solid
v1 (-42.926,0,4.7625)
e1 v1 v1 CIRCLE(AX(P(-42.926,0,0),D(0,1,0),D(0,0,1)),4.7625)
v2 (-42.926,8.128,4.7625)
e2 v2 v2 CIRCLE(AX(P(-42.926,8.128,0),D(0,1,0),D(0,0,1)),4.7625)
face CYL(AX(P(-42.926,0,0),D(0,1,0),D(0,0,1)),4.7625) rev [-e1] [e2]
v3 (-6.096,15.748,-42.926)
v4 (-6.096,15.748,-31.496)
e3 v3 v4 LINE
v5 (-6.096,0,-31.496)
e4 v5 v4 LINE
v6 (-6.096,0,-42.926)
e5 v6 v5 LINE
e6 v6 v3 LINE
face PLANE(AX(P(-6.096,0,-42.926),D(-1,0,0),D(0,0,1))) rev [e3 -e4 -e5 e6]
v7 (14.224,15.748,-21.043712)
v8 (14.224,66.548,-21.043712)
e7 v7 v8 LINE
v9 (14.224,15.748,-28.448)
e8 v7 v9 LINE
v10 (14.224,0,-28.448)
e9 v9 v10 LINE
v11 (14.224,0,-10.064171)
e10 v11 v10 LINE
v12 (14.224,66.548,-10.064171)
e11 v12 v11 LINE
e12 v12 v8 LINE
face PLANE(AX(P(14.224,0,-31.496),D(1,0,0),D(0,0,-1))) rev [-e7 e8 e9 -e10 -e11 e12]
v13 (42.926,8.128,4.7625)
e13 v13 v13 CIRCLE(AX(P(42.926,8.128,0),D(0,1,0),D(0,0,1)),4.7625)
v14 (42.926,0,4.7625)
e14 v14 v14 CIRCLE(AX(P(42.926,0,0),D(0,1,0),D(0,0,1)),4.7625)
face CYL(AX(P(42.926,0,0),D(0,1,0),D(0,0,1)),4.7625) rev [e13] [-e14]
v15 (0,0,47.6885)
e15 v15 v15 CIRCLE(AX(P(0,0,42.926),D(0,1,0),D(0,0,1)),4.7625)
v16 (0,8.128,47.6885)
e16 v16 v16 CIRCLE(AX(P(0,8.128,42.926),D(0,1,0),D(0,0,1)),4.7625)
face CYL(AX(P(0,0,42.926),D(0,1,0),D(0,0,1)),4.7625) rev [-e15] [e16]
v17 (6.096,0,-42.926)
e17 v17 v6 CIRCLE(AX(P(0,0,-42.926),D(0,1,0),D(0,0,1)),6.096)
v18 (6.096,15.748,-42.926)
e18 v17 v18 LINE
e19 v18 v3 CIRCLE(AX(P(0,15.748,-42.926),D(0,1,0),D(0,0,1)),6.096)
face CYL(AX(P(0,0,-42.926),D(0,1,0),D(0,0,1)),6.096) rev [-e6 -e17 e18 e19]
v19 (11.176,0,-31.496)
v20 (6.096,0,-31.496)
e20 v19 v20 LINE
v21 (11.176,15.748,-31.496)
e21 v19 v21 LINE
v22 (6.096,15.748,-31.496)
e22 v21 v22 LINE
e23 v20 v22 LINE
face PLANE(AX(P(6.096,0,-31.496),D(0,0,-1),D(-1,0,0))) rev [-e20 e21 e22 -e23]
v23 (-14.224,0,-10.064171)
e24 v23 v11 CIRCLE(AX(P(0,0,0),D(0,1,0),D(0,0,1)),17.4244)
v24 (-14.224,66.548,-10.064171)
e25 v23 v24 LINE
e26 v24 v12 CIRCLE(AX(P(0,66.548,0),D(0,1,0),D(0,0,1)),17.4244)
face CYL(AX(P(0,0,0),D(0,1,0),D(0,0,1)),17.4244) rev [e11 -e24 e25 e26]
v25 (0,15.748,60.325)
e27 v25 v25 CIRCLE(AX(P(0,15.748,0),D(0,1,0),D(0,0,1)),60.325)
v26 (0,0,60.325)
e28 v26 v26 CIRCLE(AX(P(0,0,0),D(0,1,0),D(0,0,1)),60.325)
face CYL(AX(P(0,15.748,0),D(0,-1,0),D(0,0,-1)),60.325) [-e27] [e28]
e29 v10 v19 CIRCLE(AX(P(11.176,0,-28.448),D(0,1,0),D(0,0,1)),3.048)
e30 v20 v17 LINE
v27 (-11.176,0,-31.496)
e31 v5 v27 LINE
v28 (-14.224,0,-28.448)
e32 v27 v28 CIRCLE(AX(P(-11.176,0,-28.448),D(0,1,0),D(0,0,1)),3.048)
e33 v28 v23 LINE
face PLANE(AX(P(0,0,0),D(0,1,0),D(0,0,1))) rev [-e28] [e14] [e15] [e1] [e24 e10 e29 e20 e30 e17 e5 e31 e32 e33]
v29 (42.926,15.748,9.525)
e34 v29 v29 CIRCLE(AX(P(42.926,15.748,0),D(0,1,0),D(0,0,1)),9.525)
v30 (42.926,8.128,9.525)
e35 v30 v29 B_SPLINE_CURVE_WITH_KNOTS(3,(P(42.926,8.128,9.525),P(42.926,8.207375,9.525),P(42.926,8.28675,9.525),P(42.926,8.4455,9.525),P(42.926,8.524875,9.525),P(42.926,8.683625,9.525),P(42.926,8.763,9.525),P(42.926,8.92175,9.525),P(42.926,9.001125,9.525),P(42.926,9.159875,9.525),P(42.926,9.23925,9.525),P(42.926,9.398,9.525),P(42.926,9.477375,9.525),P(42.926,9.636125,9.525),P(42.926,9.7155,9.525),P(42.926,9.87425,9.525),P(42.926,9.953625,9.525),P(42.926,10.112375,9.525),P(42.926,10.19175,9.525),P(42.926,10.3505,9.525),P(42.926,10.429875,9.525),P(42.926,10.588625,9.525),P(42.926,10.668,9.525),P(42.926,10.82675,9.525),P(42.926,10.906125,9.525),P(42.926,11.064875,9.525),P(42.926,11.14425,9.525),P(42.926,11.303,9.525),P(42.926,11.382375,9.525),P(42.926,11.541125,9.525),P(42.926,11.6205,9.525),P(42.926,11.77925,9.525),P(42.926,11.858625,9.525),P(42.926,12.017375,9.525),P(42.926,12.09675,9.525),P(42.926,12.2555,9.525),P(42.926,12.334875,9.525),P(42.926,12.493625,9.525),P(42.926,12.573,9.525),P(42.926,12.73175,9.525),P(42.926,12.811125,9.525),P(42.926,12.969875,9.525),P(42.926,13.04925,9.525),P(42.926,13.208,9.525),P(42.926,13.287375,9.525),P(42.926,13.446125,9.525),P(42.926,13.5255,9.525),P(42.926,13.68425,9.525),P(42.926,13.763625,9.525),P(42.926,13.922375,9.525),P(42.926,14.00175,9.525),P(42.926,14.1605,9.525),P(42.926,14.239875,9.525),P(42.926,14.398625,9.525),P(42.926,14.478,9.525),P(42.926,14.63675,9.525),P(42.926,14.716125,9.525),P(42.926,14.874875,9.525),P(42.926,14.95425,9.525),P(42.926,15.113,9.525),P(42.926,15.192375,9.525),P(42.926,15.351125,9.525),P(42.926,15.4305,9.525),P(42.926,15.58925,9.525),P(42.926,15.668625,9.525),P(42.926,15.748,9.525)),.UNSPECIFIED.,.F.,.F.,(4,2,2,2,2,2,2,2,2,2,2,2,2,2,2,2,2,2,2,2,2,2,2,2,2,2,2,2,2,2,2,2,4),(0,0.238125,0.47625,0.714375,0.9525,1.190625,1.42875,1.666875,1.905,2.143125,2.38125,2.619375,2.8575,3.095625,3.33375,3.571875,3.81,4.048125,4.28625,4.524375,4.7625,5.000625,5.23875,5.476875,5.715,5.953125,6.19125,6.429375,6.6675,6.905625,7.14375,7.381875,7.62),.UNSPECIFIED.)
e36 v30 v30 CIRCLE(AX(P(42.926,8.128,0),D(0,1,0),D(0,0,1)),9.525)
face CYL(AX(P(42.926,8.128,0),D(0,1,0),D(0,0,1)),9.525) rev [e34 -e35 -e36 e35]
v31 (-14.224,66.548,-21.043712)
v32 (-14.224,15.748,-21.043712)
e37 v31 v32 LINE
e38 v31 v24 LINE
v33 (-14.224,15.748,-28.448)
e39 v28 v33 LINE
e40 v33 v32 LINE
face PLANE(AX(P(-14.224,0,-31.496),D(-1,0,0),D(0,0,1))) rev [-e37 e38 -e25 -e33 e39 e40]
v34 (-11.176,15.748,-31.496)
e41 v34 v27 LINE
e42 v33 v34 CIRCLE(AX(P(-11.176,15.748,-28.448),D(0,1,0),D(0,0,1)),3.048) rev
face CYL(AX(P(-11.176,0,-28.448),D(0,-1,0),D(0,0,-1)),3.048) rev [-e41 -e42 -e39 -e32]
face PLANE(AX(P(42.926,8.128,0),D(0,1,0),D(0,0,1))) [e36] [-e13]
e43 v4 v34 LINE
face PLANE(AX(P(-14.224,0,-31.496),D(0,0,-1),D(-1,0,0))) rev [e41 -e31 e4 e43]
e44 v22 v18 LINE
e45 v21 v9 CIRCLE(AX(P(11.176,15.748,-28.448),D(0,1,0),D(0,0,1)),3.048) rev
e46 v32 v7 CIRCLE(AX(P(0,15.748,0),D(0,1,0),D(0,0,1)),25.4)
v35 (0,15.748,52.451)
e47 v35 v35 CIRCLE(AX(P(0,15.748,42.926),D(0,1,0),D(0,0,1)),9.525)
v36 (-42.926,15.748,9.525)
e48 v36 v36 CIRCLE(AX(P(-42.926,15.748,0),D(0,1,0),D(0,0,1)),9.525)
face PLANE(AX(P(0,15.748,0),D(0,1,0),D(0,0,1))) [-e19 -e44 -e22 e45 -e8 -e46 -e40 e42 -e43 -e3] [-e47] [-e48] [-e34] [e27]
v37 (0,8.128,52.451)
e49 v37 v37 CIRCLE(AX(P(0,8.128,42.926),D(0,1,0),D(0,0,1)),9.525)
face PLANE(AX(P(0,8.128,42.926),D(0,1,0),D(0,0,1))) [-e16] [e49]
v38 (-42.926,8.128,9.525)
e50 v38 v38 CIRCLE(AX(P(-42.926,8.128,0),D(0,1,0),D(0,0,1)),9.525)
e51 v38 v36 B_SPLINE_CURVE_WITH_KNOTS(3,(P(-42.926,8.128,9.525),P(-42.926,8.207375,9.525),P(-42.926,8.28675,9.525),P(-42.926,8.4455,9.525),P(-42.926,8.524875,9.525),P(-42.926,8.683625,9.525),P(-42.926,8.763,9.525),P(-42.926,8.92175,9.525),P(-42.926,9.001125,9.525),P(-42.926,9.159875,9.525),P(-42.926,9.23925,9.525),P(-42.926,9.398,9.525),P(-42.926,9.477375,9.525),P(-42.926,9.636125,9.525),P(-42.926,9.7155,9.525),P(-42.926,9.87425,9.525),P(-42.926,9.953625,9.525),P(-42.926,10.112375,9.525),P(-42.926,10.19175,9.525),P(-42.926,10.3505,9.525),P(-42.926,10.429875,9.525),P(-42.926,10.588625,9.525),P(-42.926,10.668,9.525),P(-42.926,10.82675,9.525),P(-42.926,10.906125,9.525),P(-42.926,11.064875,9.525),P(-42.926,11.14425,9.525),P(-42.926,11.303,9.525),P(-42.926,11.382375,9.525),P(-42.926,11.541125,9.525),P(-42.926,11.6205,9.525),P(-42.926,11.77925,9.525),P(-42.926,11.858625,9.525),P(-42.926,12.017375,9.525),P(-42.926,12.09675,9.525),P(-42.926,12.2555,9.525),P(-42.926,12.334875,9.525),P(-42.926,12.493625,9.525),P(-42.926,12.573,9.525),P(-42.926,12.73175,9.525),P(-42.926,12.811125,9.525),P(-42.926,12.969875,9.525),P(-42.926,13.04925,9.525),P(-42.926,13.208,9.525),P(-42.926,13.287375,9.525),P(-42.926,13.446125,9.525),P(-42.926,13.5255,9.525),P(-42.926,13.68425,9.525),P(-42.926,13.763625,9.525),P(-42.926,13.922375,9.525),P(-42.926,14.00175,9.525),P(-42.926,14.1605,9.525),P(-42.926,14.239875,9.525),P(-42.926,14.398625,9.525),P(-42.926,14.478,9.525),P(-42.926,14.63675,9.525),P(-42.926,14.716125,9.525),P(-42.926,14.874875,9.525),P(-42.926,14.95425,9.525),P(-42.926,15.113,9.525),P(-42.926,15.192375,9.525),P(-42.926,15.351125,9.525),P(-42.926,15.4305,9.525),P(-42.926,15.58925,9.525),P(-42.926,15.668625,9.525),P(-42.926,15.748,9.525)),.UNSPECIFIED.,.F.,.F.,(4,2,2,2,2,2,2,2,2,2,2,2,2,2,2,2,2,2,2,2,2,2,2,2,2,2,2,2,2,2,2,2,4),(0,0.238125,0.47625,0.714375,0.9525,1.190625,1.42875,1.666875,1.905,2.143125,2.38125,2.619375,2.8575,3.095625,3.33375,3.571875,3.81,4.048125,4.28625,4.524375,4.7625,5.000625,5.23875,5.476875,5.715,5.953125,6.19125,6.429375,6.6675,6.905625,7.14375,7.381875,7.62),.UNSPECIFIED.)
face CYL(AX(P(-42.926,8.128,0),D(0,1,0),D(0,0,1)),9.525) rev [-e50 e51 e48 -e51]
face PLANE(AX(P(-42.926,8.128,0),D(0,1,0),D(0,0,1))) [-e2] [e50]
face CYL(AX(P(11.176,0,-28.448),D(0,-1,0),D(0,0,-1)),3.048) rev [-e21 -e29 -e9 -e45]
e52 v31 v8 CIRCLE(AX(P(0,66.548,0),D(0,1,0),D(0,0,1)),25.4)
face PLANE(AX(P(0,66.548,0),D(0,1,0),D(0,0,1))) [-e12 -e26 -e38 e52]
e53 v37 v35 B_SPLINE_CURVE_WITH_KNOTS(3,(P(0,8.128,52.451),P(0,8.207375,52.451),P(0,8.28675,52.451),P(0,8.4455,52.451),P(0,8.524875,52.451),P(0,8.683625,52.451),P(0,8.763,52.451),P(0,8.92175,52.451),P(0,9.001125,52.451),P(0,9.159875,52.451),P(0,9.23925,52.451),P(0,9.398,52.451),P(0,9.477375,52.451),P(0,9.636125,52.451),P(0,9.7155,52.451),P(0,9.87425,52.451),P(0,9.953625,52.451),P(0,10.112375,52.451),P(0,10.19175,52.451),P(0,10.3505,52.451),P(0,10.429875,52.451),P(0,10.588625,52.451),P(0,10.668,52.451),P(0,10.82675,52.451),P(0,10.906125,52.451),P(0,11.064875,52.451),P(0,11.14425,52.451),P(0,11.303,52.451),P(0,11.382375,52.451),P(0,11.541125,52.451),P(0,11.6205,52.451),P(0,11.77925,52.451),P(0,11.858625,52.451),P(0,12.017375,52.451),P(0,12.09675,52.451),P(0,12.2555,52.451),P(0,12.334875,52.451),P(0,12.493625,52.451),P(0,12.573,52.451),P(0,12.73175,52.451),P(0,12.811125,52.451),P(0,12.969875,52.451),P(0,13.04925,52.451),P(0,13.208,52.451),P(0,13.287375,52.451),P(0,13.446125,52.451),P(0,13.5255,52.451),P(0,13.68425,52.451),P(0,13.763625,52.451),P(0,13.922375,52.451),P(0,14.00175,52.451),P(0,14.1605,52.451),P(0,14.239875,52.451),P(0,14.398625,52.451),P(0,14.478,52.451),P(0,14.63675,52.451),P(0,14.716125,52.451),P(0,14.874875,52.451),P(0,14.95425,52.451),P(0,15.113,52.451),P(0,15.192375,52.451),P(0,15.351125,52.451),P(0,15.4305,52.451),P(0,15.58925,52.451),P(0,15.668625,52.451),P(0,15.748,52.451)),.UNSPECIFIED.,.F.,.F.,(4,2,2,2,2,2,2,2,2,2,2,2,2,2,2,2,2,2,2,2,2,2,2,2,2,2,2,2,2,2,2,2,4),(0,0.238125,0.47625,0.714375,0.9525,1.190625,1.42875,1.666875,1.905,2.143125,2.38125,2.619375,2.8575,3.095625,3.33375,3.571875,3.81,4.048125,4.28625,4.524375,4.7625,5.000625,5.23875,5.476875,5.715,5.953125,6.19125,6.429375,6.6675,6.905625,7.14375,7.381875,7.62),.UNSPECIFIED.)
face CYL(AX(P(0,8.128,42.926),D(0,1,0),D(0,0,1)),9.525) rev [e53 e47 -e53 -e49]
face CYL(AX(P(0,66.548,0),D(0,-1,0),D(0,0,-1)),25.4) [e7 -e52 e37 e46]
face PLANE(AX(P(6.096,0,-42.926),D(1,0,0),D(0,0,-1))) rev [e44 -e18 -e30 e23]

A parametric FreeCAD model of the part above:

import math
import FreeCAD as App
import Part
import Sketcher
from FreeCAD import Vector
Q = App.Units.Quantity


def edges_at(feature, points):
    """Names of the edges that pass closest to the given points."""
    edges = feature.Shape.Edges
    near = lambda p: min(range(len(edges)), key=lambda i: edges[i].distToShape(Part.Vertex(*p))[0])
    return sorted({f"Edge{near(p) + 1}" for p in points})

doc = App.newDocument("Part")
params = doc.addObject("Spreadsheet::Sheet", "Params")
for row, (alias, value) in enumerate([
    ("sketch1_diameter", "4.75 in"),
    ("pad1_length", "0.62 in"),
    ("sketch2_diameter", "0.75 in"),
    ("pocket1_length", "0.3 in"),
    ("sketch3_diameter", "0.375 in"),
    ("sketch4_diameter", "2 in"),
    ("pad2_length", "2 in"),
    ("sketch5_diameter", "1.372 in"),
    ("sketch6_radius", "0.24 in"),
    ("sketch6_width", "0.32 in"),
    ("sketch6_height", "0.45 in"),
    ("sketch6_height2", "1.24 in"),
    ("fillet_radius", "0.12 in"),
], start=1):
    params.set(f"A{row}", alias)
    params.set(f"B{row}", "=" + value)
    params.setAlias(f"B{row}", alias)

body = doc.addObject("PartDesign::Body", "Body")

# Sketch on XZ plane
sketch1 = body.newObject("Sketcher::SketchObject", "Sketch")
sketch1.AttachmentSupport = (doc.getObject("XZ_Plane"), [""])
sketch1.MapMode = "FlatFace"
sketch1.addGeometry(Part.Circle(Vector(0, 0, 0), Vector(0, 0, 1), 60), False)
sketch1.addConstraint([
    Sketcher.Constraint("Coincident", 0, 3, -1, 1),
    Sketcher.Constraint("Diameter", 0, Q("4.75 in")),
])
sketch1.setExpression("Constraints[1]", "Params.sketch1_diameter")
pad1 = body.newObject("PartDesign::Pad", "Pad")
pad1.Profile = sketch1
pad1.setExpression("Length", "Params.pad1_length")
pad1.Reversed = True

# Sketch on XZ plane
sketch2 = body.newObject("Sketcher::SketchObject", "Sketch001")
sketch2.AttachmentSupport = (doc.getObject("XZ_Plane"), [""])
sketch2.MapMode = "FlatFace"
sketch2.AttachmentOffset = App.Placement(Vector(0, 0, -0.62 * 25.4), App.Rotation())
sketch2.addGeometry([
    Part.Circle(Vector(0, 43, 0), Vector(0, 0, 1), 10),
    Part.Circle(Vector(43, 0, 0), Vector(0, 0, 1), 10),
    Part.Circle(Vector(-43, 0, 0), Vector(0, 0, 1), 10),
], False)
sketch2.addConstraint([
    Sketcher.Constraint("Equal", 0, 1),
    Sketcher.Constraint("Equal", 1, 2),
    Sketcher.Constraint("Symmetric", 1, 3, 2, 3, -1, 1),
    Sketcher.Constraint("PointOnObject", 0, 3, -2),
    Sketcher.Constraint("PointOnObject", 1, 3, -1),
    Sketcher.Constraint("Diameter", 0, Q("0.75 in")),
    Sketcher.Constraint("DistanceY", -1, 1, 0, 3, Q("1.69 in")),
    Sketcher.Constraint("DistanceX", -1, 1, 1, 3, Q("1.69 in")),
])
sketch2.setExpression("Constraints[5]", "Params.sketch2_diameter")
pocket1 = body.newObject("PartDesign::Pocket", "Pocket")
pocket1.Profile = sketch2
pocket1.setExpression("Length", "Params.pocket1_length")
pocket1.Reversed = True

# Sketch on XZ plane
sketch3 = body.newObject("Sketcher::SketchObject", "Sketch002")
sketch3.AttachmentSupport = (doc.getObject("XZ_Plane"), [""])
sketch3.MapMode = "FlatFace"
sketch3.AttachmentOffset = App.Placement(Vector(0, 0, -0.32 * 25.4), App.Rotation())
sketch3.addGeometry([
    Part.Circle(Vector(-42.9, 0, 0), Vector(0, 0, 1), 4.8),
    Part.Circle(Vector(42.9, 0, 0), Vector(0, 0, 1), 4.8),
    Part.Circle(Vector(0, 42.9, 0), Vector(0, 0, 1), 4.8),
], False)
sketch3.addConstraint([
    Sketcher.Constraint("Equal", 0, 1),
    Sketcher.Constraint("Equal", 1, 2),
    Sketcher.Constraint("Symmetric", 0, 3, 1, 3, -1, 1),
    Sketcher.Constraint("PointOnObject", 0, 3, -1),
    Sketcher.Constraint("PointOnObject", 2, 3, -2),
    Sketcher.Constraint("Diameter", 0, Q("0.375 in")),
    Sketcher.Constraint("DistanceX", 0, 3, -1, 1, Q("1.69 in")),
    Sketcher.Constraint("DistanceY", -1, 1, 2, 3, Q("1.69 in")),
])
sketch3.setExpression("Constraints[5]", "Params.sketch3_diameter")
pocket2 = body.newObject("PartDesign::Pocket", "Pocket001")
pocket2.Profile = sketch3
pocket2.Type = "ThroughAll"
pocket2.Reversed = True

# Sketch on XZ plane
sketch4 = body.newObject("Sketcher::SketchObject", "Sketch003")
sketch4.AttachmentSupport = (doc.getObject("XZ_Plane"), [""])
sketch4.MapMode = "FlatFace"
sketch4.AttachmentOffset = App.Placement(Vector(0, 0, -0.62 * 25.4), App.Rotation())
sketch4.addGeometry(Part.Circle(Vector(0, 0, 0), Vector(0, 0, 1), 25), False)
sketch4.addConstraint([
    Sketcher.Constraint("Coincident", 0, 3, -1, 1),
    Sketcher.Constraint("Diameter", 0, Q("2 in")),
])
sketch4.setExpression("Constraints[1]", "Params.sketch4_diameter")
pad2 = body.newObject("PartDesign::Pad", "Pad001")
pad2.Profile = sketch4
pad2.setExpression("Length", "Params.pad2_length")
pad2.Reversed = True

# Sketch on XZ plane
sketch5 = body.newObject("Sketcher::SketchObject", "Sketch004")
sketch5.AttachmentSupport = (doc.getObject("XZ_Plane"), [""])
sketch5.MapMode = "FlatFace"
sketch5.AttachmentOffset = App.Placement(Vector(0, 0, -2.62 * 25.4), App.Rotation())
sketch5.addGeometry(Part.Circle(Vector(0, 0, 0), Vector(0, 0, 1), 17), False)
sketch5.addConstraint([
    Sketcher.Constraint("Coincident", 0, 3, -1, 1),
    Sketcher.Constraint("Diameter", 0, Q("1.372 in")),
])
sketch5.setExpression("Constraints[1]", "Params.sketch5_diameter")
pocket3 = body.newObject("PartDesign::Pocket", "Pocket002")
pocket3.Profile = sketch5
pocket3.Type = "ThroughAll"
pocket3.Reversed = True

# Sketch on XZ plane
sketch6 = body.newObject("Sketcher::SketchObject", "Sketch005")
sketch6.AttachmentSupport = (doc.getObject("XZ_Plane"), [""])
sketch6.MapMode = "FlatFace"
sketch6.AttachmentOffset = App.Placement(Vector(0, 0, -2.62 * 25.4), App.Rotation())
sketch6.addGeometry([
    Part.LineSegment(Vector(-6, -43, 0), Vector(-6, -31, 0)),  # 0
    Part.LineSegment(Vector(-6, -31, 0), Vector(-14, -31, 0)),  # 1
    Part.LineSegment(Vector(-14, -31, 0), Vector(-14, 0, 0)),  # 2
    Part.LineSegment(Vector(-14, 0, 0), Vector(14, 0, 0)),  # 3
    Part.LineSegment(Vector(14, 0, 0), Vector(14, -31, 0)),  # 4
    Part.LineSegment(Vector(14, -31, 0), Vector(6, -31, 0)),  # 5
    Part.LineSegment(Vector(6, -31, 0), Vector(6, -43, 0)),  # 6
    Part.ArcOfCircle(Part.Circle(Vector(0, -43, 0), Vector(0, 0, 1), 6), math.radians(180), math.radians(360)),  # 7
], False)
sketch6.addConstraint([
    Sketcher.Constraint("Coincident", 0, 2, 1, 1),
    Sketcher.Constraint("Coincident", 1, 2, 2, 1),
    Sketcher.Constraint("Coincident", 2, 2, 3, 1),
    Sketcher.Constraint("Coincident", 3, 2, 4, 1),
    Sketcher.Constraint("Coincident", 4, 2, 5, 1),
    Sketcher.Constraint("Coincident", 5, 2, 6, 1),
    Sketcher.Constraint("Tangent", 6, 2, 7, 2),
    Sketcher.Constraint("Tangent", 7, 1, 0, 1),
    Sketcher.Constraint("Vertical", 0),
    Sketcher.Constraint("Horizontal", 1),
    Sketcher.Constraint("Vertical", 2),
    Sketcher.Constraint("Horizontal", 3),
    Sketcher.Constraint("Vertical", 4),
    Sketcher.Constraint("Horizontal", 5),
    Sketcher.Constraint("Vertical", 6),
    Sketcher.Constraint("Symmetric", 2, 2, 3, 2, -1, 1),
    Sketcher.Constraint("Symmetric", 0, 2, 5, 2, -2),
    Sketcher.Constraint("Radius", 7, Q("0.24 in")),
    Sketcher.Constraint("DistanceX", 1, 2, 1, 1, Q("0.32 in")),
    Sketcher.Constraint("DistanceY", 0, 1, 0, 2, Q("0.45 in")),
    Sketcher.Constraint("DistanceY", 2, 1, 2, 2, Q("1.24 in")),
])
sketch6.setExpression("Constraints[17]", "Params.sketch6_radius")
sketch6.setExpression("Constraints[18]", "Params.sketch6_width")
sketch6.setExpression("Constraints[19]", "Params.sketch6_height")
sketch6.setExpression("Constraints[20]", "Params.sketch6_height2")
pocket4 = body.newObject("PartDesign::Pocket", "Pocket003")
pocket4.Profile = sketch6
pocket4.Type = "ThroughAll"
pocket4.Reversed = True
doc.recompute()

fillet = body.newObject("PartDesign::Fillet", "Fillet")
fillet.Base = (pocket4, edges_at(pocket4, [(14.224, 7.874, -31.496), (-14.224, 7.874, -31.496)]))
fillet.setExpression("Radius", "Params.fillet_radius")

doc.recompute()
